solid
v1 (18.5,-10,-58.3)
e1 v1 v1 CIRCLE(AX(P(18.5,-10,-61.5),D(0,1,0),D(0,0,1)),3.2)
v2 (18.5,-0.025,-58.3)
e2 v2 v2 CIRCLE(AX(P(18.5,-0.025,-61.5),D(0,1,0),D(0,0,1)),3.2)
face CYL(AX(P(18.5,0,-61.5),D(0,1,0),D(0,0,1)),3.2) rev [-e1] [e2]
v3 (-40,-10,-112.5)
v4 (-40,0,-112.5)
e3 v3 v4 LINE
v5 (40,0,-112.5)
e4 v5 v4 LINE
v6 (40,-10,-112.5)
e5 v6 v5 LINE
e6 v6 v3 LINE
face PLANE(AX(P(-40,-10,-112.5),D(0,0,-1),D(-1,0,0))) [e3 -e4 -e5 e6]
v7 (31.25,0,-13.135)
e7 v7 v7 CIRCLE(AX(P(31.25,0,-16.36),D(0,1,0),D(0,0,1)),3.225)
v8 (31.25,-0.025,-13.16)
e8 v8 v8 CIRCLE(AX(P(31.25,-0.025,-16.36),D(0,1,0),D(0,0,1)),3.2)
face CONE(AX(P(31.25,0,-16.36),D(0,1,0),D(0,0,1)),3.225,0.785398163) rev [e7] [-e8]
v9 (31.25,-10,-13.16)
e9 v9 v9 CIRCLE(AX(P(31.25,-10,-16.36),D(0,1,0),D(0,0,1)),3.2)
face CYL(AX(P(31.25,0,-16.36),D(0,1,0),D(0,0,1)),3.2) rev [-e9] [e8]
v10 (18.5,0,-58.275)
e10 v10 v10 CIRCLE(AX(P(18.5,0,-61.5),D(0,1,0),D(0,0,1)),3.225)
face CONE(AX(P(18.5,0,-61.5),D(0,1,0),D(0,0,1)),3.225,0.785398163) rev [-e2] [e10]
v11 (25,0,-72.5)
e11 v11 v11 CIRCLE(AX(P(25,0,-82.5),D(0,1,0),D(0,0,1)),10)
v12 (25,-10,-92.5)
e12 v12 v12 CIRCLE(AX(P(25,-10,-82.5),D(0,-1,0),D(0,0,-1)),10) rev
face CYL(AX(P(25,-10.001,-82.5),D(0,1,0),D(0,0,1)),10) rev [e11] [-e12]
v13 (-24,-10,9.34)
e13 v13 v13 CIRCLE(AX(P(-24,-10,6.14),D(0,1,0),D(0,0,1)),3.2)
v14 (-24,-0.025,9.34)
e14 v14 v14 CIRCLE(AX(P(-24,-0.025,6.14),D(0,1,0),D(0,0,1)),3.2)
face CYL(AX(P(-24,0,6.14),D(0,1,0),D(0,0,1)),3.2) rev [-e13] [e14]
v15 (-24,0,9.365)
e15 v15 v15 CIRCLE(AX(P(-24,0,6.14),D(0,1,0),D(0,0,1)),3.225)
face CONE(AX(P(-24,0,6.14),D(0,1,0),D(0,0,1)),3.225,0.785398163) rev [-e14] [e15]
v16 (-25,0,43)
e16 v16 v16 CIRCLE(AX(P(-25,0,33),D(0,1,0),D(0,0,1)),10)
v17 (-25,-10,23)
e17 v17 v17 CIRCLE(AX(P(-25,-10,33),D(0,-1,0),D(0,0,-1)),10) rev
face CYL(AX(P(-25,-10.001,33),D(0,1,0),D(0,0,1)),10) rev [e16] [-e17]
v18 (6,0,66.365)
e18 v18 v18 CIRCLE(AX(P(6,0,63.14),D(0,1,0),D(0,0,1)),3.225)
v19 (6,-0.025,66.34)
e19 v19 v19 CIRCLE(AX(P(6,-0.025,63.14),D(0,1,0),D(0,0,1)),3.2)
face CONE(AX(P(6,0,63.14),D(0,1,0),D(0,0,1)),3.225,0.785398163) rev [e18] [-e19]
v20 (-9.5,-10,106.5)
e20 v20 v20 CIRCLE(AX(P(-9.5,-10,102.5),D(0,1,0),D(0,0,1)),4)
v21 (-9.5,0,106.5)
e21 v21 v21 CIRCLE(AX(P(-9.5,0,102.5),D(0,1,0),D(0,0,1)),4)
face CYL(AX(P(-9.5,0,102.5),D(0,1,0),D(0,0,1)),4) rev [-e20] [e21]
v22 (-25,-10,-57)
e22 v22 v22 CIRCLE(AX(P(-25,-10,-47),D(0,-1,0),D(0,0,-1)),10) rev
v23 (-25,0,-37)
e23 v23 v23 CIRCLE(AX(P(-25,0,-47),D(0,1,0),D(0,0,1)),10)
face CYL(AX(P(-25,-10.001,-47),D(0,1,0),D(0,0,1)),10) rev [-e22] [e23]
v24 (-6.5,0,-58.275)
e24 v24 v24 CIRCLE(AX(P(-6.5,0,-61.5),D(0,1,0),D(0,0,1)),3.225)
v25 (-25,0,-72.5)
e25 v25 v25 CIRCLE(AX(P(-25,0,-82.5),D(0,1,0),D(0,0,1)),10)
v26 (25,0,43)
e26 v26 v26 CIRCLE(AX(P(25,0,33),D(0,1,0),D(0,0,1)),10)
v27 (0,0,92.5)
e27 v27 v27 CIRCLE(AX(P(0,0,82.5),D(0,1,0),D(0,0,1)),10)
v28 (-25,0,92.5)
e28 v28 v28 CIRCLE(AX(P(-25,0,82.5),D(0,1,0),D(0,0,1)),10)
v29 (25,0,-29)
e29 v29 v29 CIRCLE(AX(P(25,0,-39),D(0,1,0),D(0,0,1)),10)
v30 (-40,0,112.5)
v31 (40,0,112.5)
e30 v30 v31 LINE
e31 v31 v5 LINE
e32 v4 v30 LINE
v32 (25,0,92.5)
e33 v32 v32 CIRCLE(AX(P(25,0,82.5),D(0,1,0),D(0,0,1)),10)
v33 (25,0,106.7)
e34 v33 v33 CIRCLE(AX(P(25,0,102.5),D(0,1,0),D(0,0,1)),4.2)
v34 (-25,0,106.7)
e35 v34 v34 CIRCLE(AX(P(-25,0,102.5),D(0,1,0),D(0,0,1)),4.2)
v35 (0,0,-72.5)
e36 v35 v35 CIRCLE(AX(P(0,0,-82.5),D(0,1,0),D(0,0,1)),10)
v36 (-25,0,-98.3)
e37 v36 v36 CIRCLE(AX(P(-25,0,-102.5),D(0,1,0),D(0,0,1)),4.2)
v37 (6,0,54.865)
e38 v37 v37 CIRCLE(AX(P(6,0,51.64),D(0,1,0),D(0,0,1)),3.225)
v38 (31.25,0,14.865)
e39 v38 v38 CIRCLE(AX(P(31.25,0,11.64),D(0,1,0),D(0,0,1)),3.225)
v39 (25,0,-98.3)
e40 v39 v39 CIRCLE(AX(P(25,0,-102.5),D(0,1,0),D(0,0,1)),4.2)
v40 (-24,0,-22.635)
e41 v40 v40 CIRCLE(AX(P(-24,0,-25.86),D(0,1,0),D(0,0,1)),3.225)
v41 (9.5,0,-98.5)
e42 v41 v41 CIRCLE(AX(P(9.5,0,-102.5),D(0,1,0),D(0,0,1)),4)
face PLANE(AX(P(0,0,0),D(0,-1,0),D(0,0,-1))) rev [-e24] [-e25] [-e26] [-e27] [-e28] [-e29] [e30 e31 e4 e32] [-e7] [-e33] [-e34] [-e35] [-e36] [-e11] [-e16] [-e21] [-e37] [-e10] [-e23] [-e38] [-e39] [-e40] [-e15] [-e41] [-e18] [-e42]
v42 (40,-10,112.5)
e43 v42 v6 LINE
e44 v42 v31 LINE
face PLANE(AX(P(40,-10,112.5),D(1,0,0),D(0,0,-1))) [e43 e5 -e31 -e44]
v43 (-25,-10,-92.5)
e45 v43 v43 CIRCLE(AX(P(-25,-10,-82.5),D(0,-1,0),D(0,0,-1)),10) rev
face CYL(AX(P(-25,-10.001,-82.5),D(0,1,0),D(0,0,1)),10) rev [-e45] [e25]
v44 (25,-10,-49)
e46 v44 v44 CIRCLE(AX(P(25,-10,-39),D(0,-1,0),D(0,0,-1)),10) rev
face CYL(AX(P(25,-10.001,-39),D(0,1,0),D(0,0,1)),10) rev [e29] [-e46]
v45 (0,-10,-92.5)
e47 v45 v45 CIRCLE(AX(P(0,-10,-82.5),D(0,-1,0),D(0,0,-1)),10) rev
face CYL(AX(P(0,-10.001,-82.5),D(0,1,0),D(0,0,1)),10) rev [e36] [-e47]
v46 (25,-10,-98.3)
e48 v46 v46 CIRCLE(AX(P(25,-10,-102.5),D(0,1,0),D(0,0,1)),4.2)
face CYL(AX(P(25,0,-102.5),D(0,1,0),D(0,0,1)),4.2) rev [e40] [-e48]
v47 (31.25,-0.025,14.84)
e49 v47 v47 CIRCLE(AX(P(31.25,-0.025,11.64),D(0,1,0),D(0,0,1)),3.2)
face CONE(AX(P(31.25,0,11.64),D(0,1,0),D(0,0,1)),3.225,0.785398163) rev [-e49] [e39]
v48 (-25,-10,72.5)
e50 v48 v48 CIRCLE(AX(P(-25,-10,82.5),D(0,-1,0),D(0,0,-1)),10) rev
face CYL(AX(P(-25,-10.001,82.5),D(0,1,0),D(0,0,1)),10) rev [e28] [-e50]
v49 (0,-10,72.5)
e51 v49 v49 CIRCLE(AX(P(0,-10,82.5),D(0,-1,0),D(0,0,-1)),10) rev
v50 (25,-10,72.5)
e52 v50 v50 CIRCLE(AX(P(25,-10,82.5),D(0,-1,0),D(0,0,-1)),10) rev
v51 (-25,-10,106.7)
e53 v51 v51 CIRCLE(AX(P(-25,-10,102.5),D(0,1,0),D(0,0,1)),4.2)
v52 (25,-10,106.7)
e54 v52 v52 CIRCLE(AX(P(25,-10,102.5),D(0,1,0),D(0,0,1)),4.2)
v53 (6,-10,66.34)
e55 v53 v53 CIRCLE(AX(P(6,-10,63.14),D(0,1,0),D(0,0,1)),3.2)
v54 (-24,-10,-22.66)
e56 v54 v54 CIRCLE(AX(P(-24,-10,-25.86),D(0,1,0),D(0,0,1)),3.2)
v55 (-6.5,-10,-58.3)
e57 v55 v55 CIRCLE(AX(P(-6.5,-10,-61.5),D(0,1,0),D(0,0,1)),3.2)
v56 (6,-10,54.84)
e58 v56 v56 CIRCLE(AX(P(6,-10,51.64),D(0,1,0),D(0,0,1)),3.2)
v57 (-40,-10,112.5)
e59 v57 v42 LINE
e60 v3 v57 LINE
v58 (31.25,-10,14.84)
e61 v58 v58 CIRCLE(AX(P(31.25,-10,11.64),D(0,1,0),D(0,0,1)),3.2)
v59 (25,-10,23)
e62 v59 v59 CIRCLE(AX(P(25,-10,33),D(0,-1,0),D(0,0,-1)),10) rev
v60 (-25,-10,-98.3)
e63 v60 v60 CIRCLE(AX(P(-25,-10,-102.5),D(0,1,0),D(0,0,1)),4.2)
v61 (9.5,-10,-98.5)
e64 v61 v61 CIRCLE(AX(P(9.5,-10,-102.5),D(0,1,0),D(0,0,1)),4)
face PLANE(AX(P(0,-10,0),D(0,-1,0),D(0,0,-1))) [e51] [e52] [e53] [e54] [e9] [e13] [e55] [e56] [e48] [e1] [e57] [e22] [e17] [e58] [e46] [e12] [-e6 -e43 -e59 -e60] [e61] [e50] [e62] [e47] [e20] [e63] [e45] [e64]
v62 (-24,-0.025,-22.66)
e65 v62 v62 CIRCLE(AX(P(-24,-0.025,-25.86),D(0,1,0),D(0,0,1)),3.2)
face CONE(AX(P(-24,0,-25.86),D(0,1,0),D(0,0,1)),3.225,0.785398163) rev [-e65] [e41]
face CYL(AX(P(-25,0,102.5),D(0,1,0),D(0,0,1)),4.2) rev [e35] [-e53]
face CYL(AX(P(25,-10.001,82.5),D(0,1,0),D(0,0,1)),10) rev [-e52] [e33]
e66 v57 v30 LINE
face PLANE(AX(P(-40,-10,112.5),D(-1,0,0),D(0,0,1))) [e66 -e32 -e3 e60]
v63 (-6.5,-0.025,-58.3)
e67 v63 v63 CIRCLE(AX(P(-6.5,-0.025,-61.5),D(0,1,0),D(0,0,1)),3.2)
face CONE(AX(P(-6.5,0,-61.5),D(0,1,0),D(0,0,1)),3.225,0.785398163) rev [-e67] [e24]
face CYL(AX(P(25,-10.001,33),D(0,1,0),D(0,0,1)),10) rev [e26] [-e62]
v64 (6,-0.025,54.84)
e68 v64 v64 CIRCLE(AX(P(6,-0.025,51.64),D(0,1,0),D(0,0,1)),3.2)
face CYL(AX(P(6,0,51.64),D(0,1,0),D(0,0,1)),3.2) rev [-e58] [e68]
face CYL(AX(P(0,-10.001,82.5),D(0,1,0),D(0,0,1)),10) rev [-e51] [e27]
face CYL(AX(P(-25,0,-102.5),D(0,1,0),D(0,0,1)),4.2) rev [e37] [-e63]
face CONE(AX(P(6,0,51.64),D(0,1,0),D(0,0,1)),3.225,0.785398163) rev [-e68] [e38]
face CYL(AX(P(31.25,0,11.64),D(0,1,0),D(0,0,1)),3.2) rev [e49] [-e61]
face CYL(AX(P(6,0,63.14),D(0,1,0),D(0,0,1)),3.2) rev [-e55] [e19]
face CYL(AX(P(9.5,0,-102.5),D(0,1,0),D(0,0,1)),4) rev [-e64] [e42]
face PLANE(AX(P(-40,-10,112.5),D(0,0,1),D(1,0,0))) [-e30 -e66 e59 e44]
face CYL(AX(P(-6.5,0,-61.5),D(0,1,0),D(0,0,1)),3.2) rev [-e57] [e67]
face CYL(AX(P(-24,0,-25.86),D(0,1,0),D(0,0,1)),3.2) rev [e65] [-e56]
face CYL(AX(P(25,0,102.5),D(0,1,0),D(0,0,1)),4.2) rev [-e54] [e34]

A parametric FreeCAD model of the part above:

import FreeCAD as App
import Part
import Sketcher
Q = App.Units.Quantity


def add_polygon(sketch, points):
    """Adds a closed chain of lines whose ends are joined by coincident constraints."""
    first, n = sketch.GeometryCount, len(points)
    for a, b in zip(points, points[1:] + points[:1]):
        sketch.addGeometry(Part.LineSegment(App.Vector(*a, 0), App.Vector(*b, 0)), False)
    for i in range(n):
        sketch.addConstraint(Sketcher.Constraint("Coincident", first + i, 2, first + (i + 1) % n, 1))

doc = App.newDocument("Part")
body = doc.addObject("PartDesign::Body", "Body")

# Sketch on XZ plane
sketch1 = body.newObject("Sketcher::SketchObject", "Sketch")
sketch1.AttachmentSupport = (doc.getObject("XZ_Plane"), [""])
sketch1.MapMode = "FlatFace"
add_polygon(sketch1, [(-40, -112), (-40, 112), (40, 112), (40, -112)])  # lines 0-3
sketch1.addConstraint(Sketcher.Constraint("Vertical", 0))
sketch1.addConstraint(Sketcher.Constraint("Horizontal", 1))
sketch1.addConstraint(Sketcher.Constraint("Vertical", 2))
sketch1.addConstraint(Sketcher.Constraint("Horizontal", 3))
sketch1.addConstraint(Sketcher.Constraint("Symmetric", 0, 2, 2, 2, -1, 1))
sketch1.addConstraint(Sketcher.Constraint("DistanceX", 1, 1, 1, 2, Q("80 mm")))
sketch1.addConstraint(Sketcher.Constraint("DistanceY", 0, 1, 0, 2, Q("225 mm")))
pad1 = body.newObject("PartDesign::Pad", "Pad")
pad1.Profile = sketch1
pad1.Length = 10

# Sketch on XZ plane
sketch2 = body.newObject("Sketcher::SketchObject", "Sketch001")
sketch2.AttachmentSupport = (doc.getObject("XZ_Plane"), [""])
sketch2.MapMode = "FlatFace"
sketch2.addGeometry(Part.Circle(App.Vector(25, 82, 0), App.Vector(0, 0, 1), 10), False)
sketch2.addConstraint(Sketcher.Constraint("Diameter", 0, Q("20 mm")))
sketch2.addConstraint(Sketcher.Constraint("DistanceX", -1, 1, 0, 3, Q("25 mm")))
sketch2.addConstraint(Sketcher.Constraint("DistanceY", -1, 1, 0, 3, Q("82.5 mm")))
pocket1 = body.newObject("PartDesign::Pocket", "Pocket")
pocket1.Profile = sketch2
pocket1.Type = "UpToFirst"
pocket1.Reversed = True

# Sketch on XZ plane
sketch3 = body.newObject("Sketcher::SketchObject", "Sketch002")
sketch3.AttachmentSupport = (doc.getObject("XZ_Plane"), [""])
sketch3.MapMode = "FlatFace"
sketch3.addGeometry(Part.Circle(App.Vector(0, 82, 0), App.Vector(0, 0, 1), 10), False)
sketch3.addConstraint(Sketcher.Constraint("PointOnObject", 0, 3, -2))
sketch3.addConstraint(Sketcher.Constraint("Diameter", 0, Q("20 mm")))
sketch3.addConstraint(Sketcher.Constraint("DistanceY", -1, 1, 0, 3, Q("82.5 mm")))
pocket2 = body.newObject("PartDesign::Pocket", "Pocket001")
pocket2.Profile = sketch3
pocket2.Type = "UpToFirst"
pocket2.Reversed = True

# Sketch on XZ plane
sketch4 = body.newObject("Sketcher::SketchObject", "Sketch003")
sketch4.AttachmentSupport = (doc.getObject("XZ_Plane"), [""])
sketch4.MapMode = "FlatFace"
sketch4.addGeometry(Part.Circle(App.Vector(-25, 82, 0), App.Vector(0, 0, 1), 10), False)
sketch4.addConstraint(Sketcher.Constraint("Diameter", 0, Q("20 mm")))
sketch4.addConstraint(Sketcher.Constraint("DistanceX", 0, 3, -1, 1, Q("25 mm")))
sketch4.addConstraint(Sketcher.Constraint("DistanceY", -1, 1, 0, 3, Q("82.5 mm")))
pocket3 = body.newObject("PartDesign::Pocket", "Pocket002")
pocket3.Profile = sketch4
pocket3.Type = "UpToFirst"
pocket3.Reversed = True

# Sketch on XZ plane
sketch5 = body.newObject("Sketcher::SketchObject", "Sketch004")
sketch5.AttachmentSupport = (doc.getObject("XZ_Plane"), [""])
sketch5.MapMode = "FlatFace"
sketch5.addGeometry(Part.Circle(App.Vector(25, 33, 0), App.Vector(0, 0, 1), 10), False)
sketch5.addConstraint(Sketcher.Constraint("Diameter", 0, Q("20 mm")))
sketch5.addConstraint(Sketcher.Constraint("DistanceX", -1, 1, 0, 3, Q("25 mm")))
sketch5.addConstraint(Sketcher.Constraint("DistanceY", -1, 1, 0, 3, Q("33 mm")))
pocket4 = body.newObject("PartDesign::Pocket", "Pocket003")
pocket4.Profile = sketch5
pocket4.Type = "UpToFirst"
pocket4.Reversed = True

# Sketch on XZ plane
sketch6 = body.newObject("Sketcher::SketchObject", "Sketch005")
sketch6.AttachmentSupport = (doc.getObject("XZ_Plane"), [""])
sketch6.MapMode = "FlatFace"
sketch6.addGeometry(Part.Circle(App.Vector(-25, 33, 0), App.Vector(0, 0, 1), 10), False)
sketch6.addConstraint(Sketcher.Constraint("Diameter", 0, Q("20 mm")))
sketch6.addConstraint(Sketcher.Constraint("DistanceX", 0, 3, -1, 1, Q("25 mm")))
sketch6.addConstraint(Sketcher.Constraint("DistanceY", -1, 1, 0, 3, Q("33 mm")))
pocket5 = body.newObject("PartDesign::Pocket", "Pocket004")
pocket5.Profile = sketch6
pocket5.Type = "UpToFirst"
pocket5.Reversed = True

# Sketch on XZ plane
sketch7 = body.newObject("Sketcher::SketchObject", "Sketch006")
sketch7.AttachmentSupport = (doc.getObject("XZ_Plane"), [""])
sketch7.MapMode = "FlatFace"
sketch7.addGeometry(Part.Circle(App.Vector(25, -39, 0), App.Vector(0, 0, 1), 10), False)
sketch7.addConstraint(Sketcher.Constraint("Diameter", 0, Q("20 mm")))
sketch7.addConstraint(Sketcher.Constraint("DistanceX", -1, 1, 0, 3, Q("25 mm")))
sketch7.addConstraint(Sketcher.Constraint("DistanceY", 0, 3, -1, 1, Q("39 mm")))
pocket6 = body.newObject("PartDesign::Pocket", "Pocket005")
pocket6.Profile = sketch7
pocket6.Type = "UpToFirst"
pocket6.Reversed = True

# Sketch on XZ plane
sketch8 = body.newObject("Sketcher::SketchObject", "Sketch007")
sketch8.AttachmentSupport = (doc.getObject("XZ_Plane"), [""])
sketch8.MapMode = "FlatFace"
sketch8.addGeometry(Part.Circle(App.Vector(-25, -47, 0), App.Vector(0, 0, 1), 10), False)
sketch8.addConstraint(Sketcher.Constraint("Diameter", 0, Q("20 mm")))
sketch8.addConstraint(Sketcher.Constraint("DistanceX", 0, 3, -1, 1, Q("25 mm")))
sketch8.addConstraint(Sketcher.Constraint("DistanceY", 0, 3, -1, 1, Q("47 mm")))
pocket7 = body.newObject("PartDesign::Pocket", "Pocket006")
pocket7.Profile = sketch8
pocket7.Type = "UpToFirst"
pocket7.Reversed = True

# Sketch on XZ plane
sketch9 = body.newObject("Sketcher::SketchObject", "Sketch008")
sketch9.AttachmentSupport = (doc.getObject("XZ_Plane"), [""])
sketch9.MapMode = "FlatFace"
sketch9.addGeometry(Part.Circle(App.Vector(-25, -82, 0), App.Vector(0, 0, 1), 10), False)
sketch9.addConstraint(Sketcher.Constraint("Diameter", 0, Q("20 mm")))
sketch9.addConstraint(Sketcher.Constraint("DistanceX", 0, 3, -1, 1, Q("25 mm")))
sketch9.addConstraint(Sketcher.Constraint("DistanceY", 0, 3, -1, 1, Q("82.5 mm")))
pocket8 = body.newObject("PartDesign::Pocket", "Pocket007")
pocket8.Profile = sketch9
pocket8.Type = "UpToFirst"
pocket8.Reversed = True

# Sketch on XZ plane
sketch10 = body.newObject("Sketcher::SketchObject", "Sketch009")
sketch10.AttachmentSupport = (doc.getObject("XZ_Plane"), [""])
sketch10.MapMode = "FlatFace"
sketch10.addGeometry(Part.Circle(App.Vector(0, -82, 0), App.Vector(0, 0, 1), 10), False)
sketch10.addConstraint(Sketcher.Constraint("PointOnObject", 0, 3, -2))
sketch10.addConstraint(Sketcher.Constraint("Diameter", 0, Q("20 mm")))
sketch10.addConstraint(Sketcher.Constraint("DistanceY", 0, 3, -1, 1, Q("82.5 mm")))
pocket9 = body.newObject("PartDesign::Pocket", "Pocket008")
pocket9.Profile = sketch10
pocket9.Type = "UpToFirst"
pocket9.Reversed = True

# Sketch on XZ plane
sketch11 = body.newObject("Sketcher::SketchObject", "Sketch010")
sketch11.AttachmentSupport = (doc.getObject("XZ_Plane"), [""])
sketch11.MapMode = "FlatFace"
sketch11.addGeometry(Part.Circle(App.Vector(25, -82, 0), App.Vector(0, 0, 1), 10), False)
sketch11.addConstraint(Sketcher.Constraint("Diameter", 0, Q("20 mm")))
sketch11.addConstraint(Sketcher.Constraint("DistanceX", -1, 1, 0, 3, Q("25 mm")))
sketch11.addConstraint(Sketcher.Constraint("DistanceY", 0, 3, -1, 1, Q("82.5 mm")))
pocket10 = body.newObject("PartDesign::Pocket", "Pocket009")
pocket10.Profile = sketch11
pocket10.Type = "UpToFirst"
pocket10.Reversed = True

# Sketch on XZ plane
sketch12 = body.newObject("Sketcher::SketchObject", "Sketch011")
sketch12.AttachmentSupport = (doc.getObject("XZ_Plane"), [""])
sketch12.MapMode = "FlatFace"
sketch12.addGeometry(Part.Circle(App.Vector(25, 102.5, 0), App.Vector(0, 0, 1), 4.2), False)
sketch12.addGeometry(Part.Circle(App.Vector(-25, 102.5, 0), App.Vector(0, 0, 1), 4.2), False)
sketch12.addGeometry(Part.Circle(App.Vector(25, -102.5, 0), App.Vector(0, 0, 1), 4.2), False)
sketch12.addGeometry(Part.Circle(App.Vector(-25, -102.5, 0), App.Vector(0, 0, 1), 4.2), False)
sketch12.addConstraint(Sketcher.Constraint("Equal", 0, 1))
sketch12.addConstraint(Sketcher.Constraint("Equal", 1, 2))
sketch12.addConstraint(Sketcher.Constraint("Equal", 2, 3))
sketch12.addConstraint(Sketcher.Constraint("Symmetric", 1, 3, 2, 3, -1, 1))
sketch12.addConstraint(Sketcher.Constraint("Symmetric", 0, 3, 3, 3, -1, 1))
sketch12.addConstraint(Sketcher.Constraint("Symmetric", 0, 3, 1, 3, -2))
sketch12.addConstraint(Sketcher.Constraint("Diameter", 0, Q("8.4 mm")))
sketch12.addConstraint(Sketcher.Constraint("DistanceX", -1, 1, 0, 3, Q("25 mm")))
sketch12.addConstraint(Sketcher.Constraint("DistanceY", 2, 3, 0, 3, Q("205 mm")))
doc.recompute()
hole = body.newObject("PartDesign::Hole", "Hole")
hole.Profile = sketch12
hole.ThreadType = "None"
hole.Diameter = 8.4
hole.DepthType = "ThroughAll"
hole.Reversed = True

# Sketch on XZ plane
sketch13 = body.newObject("Sketcher::SketchObject", "Sketch012")
sketch13.AttachmentSupport = (doc.getObject("XZ_Plane"), [""])
sketch13.MapMode = "FlatFace"
sketch13.addGeometry(Part.Circle(App.Vector(-9.5, 102.5, 0), App.Vector(0, 0, 1), 4), False)
sketch13.addGeometry(Part.Circle(App.Vector(9.5, -102.5, 0), App.Vector(0, 0, 1), 4), False)
sketch13.addConstraint(Sketcher.Constraint("Equal", 0, 1))
sketch13.addConstraint(Sketcher.Constraint("Symmetric", 0, 3, 1, 3, -1, 1))
sketch13.addConstraint(Sketcher.Constraint("Diameter", 0, Q("8 mm")))
sketch13.addConstraint(Sketcher.Constraint("DistanceX", 0, 3, 1, 3, Q("19 mm")))
sketch13.addConstraint(Sketcher.Constraint("DistanceY", 1, 3, 0, 3, Q("205 mm")))
doc.recompute()
hole2 = body.newObject("PartDesign::Hole", "Hole001")
hole2.Profile = sketch13
hole2.ThreadType = "None"
hole2.Diameter = 8
hole2.DepthType = "ThroughAll"
hole2.Reversed = True

# Sketch on XZ plane
sketch14 = body.newObject("Sketcher::SketchObject", "Sketch013")
sketch14.AttachmentSupport = (doc.getObject("XZ_Plane"), [""])
sketch14.MapMode = "FlatFace"
sketch14.addGeometry(Part.Circle(App.Vector(-24, 6.1, 0), App.Vector(0, 0, 1), 3.2), False)
sketch14.addGeometry(Part.Circle(App.Vector(-24, -25.9, 0), App.Vector(0, 0, 1), 3.2), False)
sketch14.addGeometry(Part.Circle(App.Vector(31.2, 11.6, 0), App.Vector(0, 0, 1), 3.2), False)
sketch14.addGeometry(Part.Circle(App.Vector(31.2, -16.4, 0), App.Vector(0, 0, 1), 3.2), False)
sketch14.addGeometry(Part.Circle(App.Vector(18.5, -61.5, 0), App.Vector(0, 0, 1), 3.2), False)
sketch14.addGeometry(Part.Circle(App.Vector(-6.5, -61.5, 0), App.Vector(0, 0, 1), 3.2), False)
sketch14.addGeometry(Part.Circle(App.Vector(6, 51.6, 0), App.Vector(0, 0, 1), 3.2), False)
sketch14.addGeometry(Part.Circle(App.Vector(6, 63.1, 0), App.Vector(0, 0, 1), 3.2), False)
sketch14.addConstraint(Sketcher.Constraint("Equal", 0, 1))
sketch14.addConstraint(Sketcher.Constraint("Equal", 1, 2))
sketch14.addConstraint(Sketcher.Constraint("Equal", 2, 3))
sketch14.addConstraint(Sketcher.Constraint("Equal", 3, 4))
sketch14.addConstraint(Sketcher.Constraint("Equal", 4, 5))
sketch14.addConstraint(Sketcher.Constraint("Equal", 5, 6))
sketch14.addConstraint(Sketcher.Constraint("Equal", 6, 7))
sketch14.addConstraint(Sketcher.Constraint("Horizontal", 4, 3, 5, 3))
sketch14.addConstraint(Sketcher.Constraint("Vertical", 0, 3, 1, 3))
sketch14.addConstraint(Sketcher.Constraint("Vertical", 2, 3, 3, 3))
sketch14.addConstraint(Sketcher.Constraint("Vertical", 6, 3, 7, 3))
sketch14.addConstraint(Sketcher.Constraint("Diameter", 0, Q("6.4 mm")))
sketch14.addConstraint(Sketcher.Constraint("DistanceX", 0, 3, -1, 1, Q("24 mm")))
sketch14.addConstraint(Sketcher.Constraint("DistanceX", -1, 1, 6, 3, Q("6 mm")))
sketch14.addConstraint(Sketcher.Constraint("DistanceY", 1, 3, 0, 3, Q("32 mm")))
sketch14.addConstraint(Sketcher.Constraint("DistanceY", 3, 3, 2, 3, Q("28 mm")))
sketch14.addConstraint(Sketcher.Constraint("DistanceX", 5, 3, 4, 3, Q("25 mm")))
sketch14.addConstraint(Sketcher.Constraint("DistanceY", 2, 3, 6, 3, Q("40 mm")))
sketch14.addConstraint(Sketcher.Constraint("DistanceY", 0, 3, 7, 3, Q("57 mm")))
sketch14.addConstraint(Sketcher.Constraint("DistanceX", -1, 1, 4, 3, Q("18.5 mm")))
sketch14.addConstraint(Sketcher.Constraint("DistanceY", 4, 3, -1, 1, Q("61.5 mm")))
sketch14.addConstraint(Sketcher.Constraint("DistanceY", 0, 3, 2, 3, Q("5.5 mm")))
sketch14.addConstraint(Sketcher.Constraint("DistanceY", -1, 1, 0, 3, Q("6.14 mm")))
sketch14.addConstraint(Sketcher.Constraint("DistanceX", -1, 1, 2, 3, Q("31.25 mm")))
doc.recompute()
hole3 = body.newObject("PartDesign::Hole", "Hole002")
hole3.Profile = sketch14
hole3.ThreadType = "None"
hole3.Diameter = 6.4
hole3.DepthType = "ThroughAll"
hole3.HoleCutType = "Countersink"
hole3.HoleCutDiameter = 6.45
hole3.HoleCutCountersinkAngle = 90
hole3.Reversed = True

doc.recompute()
